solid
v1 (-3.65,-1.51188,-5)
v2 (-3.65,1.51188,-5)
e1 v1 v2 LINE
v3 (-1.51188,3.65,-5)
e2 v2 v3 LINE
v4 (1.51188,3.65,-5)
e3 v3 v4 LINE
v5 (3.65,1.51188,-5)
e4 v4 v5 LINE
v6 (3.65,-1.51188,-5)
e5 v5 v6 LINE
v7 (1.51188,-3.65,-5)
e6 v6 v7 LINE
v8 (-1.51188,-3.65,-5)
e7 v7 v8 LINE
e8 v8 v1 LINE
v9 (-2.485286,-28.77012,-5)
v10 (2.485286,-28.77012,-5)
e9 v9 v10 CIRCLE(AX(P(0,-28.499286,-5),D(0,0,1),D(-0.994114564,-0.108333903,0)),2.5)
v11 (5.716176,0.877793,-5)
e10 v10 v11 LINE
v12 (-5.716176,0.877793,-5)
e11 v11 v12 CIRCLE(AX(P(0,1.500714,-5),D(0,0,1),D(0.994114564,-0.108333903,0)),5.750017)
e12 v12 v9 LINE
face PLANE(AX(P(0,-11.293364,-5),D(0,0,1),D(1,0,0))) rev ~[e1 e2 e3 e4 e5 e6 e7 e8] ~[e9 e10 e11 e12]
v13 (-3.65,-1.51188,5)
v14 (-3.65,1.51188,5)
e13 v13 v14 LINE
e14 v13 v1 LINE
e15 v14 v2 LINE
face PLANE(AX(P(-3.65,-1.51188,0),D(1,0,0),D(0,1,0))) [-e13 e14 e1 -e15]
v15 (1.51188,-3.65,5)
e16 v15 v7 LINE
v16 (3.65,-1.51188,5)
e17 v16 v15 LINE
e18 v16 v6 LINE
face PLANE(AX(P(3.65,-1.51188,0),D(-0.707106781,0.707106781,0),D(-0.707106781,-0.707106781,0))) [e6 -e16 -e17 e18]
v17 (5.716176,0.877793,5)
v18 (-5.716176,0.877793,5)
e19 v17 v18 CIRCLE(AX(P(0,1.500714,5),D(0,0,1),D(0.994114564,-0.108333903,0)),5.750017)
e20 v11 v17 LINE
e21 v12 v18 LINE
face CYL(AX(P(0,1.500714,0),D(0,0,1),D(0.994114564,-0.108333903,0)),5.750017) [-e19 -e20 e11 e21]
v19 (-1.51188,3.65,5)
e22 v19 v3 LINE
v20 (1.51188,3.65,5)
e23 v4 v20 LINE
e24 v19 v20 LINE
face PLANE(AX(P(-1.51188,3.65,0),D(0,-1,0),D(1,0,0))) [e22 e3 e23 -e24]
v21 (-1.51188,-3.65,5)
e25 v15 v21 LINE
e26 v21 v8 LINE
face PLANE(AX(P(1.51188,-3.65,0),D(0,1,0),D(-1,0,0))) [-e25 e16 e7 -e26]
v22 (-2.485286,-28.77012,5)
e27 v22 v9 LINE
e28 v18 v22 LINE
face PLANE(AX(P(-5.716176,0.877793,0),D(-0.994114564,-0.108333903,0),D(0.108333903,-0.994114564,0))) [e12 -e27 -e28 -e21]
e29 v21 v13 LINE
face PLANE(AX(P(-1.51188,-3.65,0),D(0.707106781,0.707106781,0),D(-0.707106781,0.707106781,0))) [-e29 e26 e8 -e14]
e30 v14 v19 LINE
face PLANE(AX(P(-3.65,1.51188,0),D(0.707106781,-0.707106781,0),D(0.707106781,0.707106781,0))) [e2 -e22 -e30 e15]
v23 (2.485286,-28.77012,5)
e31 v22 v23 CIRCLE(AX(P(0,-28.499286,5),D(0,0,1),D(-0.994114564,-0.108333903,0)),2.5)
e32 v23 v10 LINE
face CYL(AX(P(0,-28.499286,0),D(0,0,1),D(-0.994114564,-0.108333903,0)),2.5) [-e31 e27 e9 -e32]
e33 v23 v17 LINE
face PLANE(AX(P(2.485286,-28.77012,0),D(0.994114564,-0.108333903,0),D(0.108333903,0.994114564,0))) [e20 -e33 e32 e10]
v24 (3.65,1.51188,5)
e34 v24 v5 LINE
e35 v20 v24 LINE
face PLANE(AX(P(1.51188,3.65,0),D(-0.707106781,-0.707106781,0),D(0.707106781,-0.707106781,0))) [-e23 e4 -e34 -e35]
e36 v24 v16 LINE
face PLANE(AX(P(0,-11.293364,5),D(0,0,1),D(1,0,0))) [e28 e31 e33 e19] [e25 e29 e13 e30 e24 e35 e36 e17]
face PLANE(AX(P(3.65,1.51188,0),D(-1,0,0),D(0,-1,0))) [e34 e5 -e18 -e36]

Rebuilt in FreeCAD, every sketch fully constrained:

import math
import FreeCAD as App
import Part
import Sketcher

V = App.Vector

doc = App.newDocument("Part")
body = doc.addObject("PartDesign::Body", "Body")

sketch1 = doc.addObject("Sketcher::SketchObject", "Sketch")
body.addObject(sketch1)
sketch1.AttachmentSupport = (doc.XY_Plane, [""])
sketch1.MapMode = "FlatFace"
sketch1.addGeometry([
    Part.LineSegment(V(2.5, -28.8, 0), V(5.7, 0.9, 0)),
    Part.ArcOfCircle(Part.Circle(V(0, 1.5, 0), V(0, 0, 1), 5.8), math.radians(-6), math.radians(186)),
    Part.LineSegment(V(-5.7, 0.9, 0), V(-2.5, -28.8, 0)),
    Part.ArcOfCircle(Part.Circle(V(0, -28.5, 0), V(0, 0, 1), 2.5), math.radians(-174), math.radians(-6)),
    Part.LineSegment(V(-1.5, 3.6, 0), V(1.5, 3.6, 0)),
    Part.LineSegment(V(1.5, 3.6, 0), V(3.6, 1.5, 0)),
    Part.LineSegment(V(3.6, 1.5, 0), V(3.6, -1.5, 0)),
    Part.LineSegment(V(3.6, -1.5, 0), V(1.5, -3.6, 0)),
    Part.LineSegment(V(1.5, -3.6, 0), V(-1.5, -3.6, 0)),
    Part.LineSegment(V(-1.5, -3.6, 0), V(-3.6, -1.5, 0)),
    Part.LineSegment(V(-3.6, -1.5, 0), V(-3.6, 1.5, 0)),
    Part.LineSegment(V(-3.6, 1.5, 0), V(-1.5, 3.6, 0)),
], False)
sketch1.addConstraint([
    Sketcher.Constraint("Tangent", 0, 2, 1, 1),
    Sketcher.Constraint("Tangent", 1, 2, 2, 1),
    Sketcher.Constraint("Tangent", 2, 2, 3, 1),
    Sketcher.Constraint("Tangent", 3, 2, 0, 1),
    Sketcher.Constraint("Coincident", 4, 2, 5, 1),
    Sketcher.Constraint("Coincident", 5, 2, 6, 1),
    Sketcher.Constraint("Coincident", 6, 2, 7, 1),
    Sketcher.Constraint("Coincident", 7, 2, 8, 1),
    Sketcher.Constraint("Coincident", 8, 2, 9, 1),
    Sketcher.Constraint("Coincident", 9, 2, 10, 1),
    Sketcher.Constraint("Coincident", 10, 2, 11, 1),
    Sketcher.Constraint("Coincident", 11, 2, 4, 1),
    Sketcher.Constraint("Horizontal", 4),
    Sketcher.Constraint("Vertical", 6),
    Sketcher.Constraint("Horizontal", 8),
    Sketcher.Constraint("Vertical", 10),
    Sketcher.Constraint("Symmetric", 4, 2, 8, 2, -1, 1),
    Sketcher.Constraint("Symmetric", 5, 2, 9, 2, -1, 1),
    Sketcher.Constraint("Symmetric", 0, 2, 1, 2, -2),
    Sketcher.Constraint("Perpendicular", 5, 7),
    Sketcher.Constraint("Perpendicular", 9, 11),
    Sketcher.Constraint("Horizontal", 6, 2, 9, 2),
    Sketcher.Constraint("Horizontal", 5, 2, 10, 2),
    Sketcher.Constraint("Vertical", 4, 2, 7, 2),
    Sketcher.Constraint("Equal", 8, 6),
    Sketcher.Constraint("Radius", 3, 2.5),
    Sketcher.Constraint("DistanceY", 3, 3, 1, 3, 30.0),
    Sketcher.Constraint("DistanceY", 7, 2, 4, 2, 7.3),
    Sketcher.Constraint("Radius", 1, 5.750017),
    Sketcher.Constraint("DistanceX", 4, 1, 4, 2, 3.023759),
    Sketcher.Constraint("DistanceY", 2, 2, -1, 1, 28.77012),
])
pad1 = doc.addObject("PartDesign::Pad", "Pad")
body.addObject(pad1)
pad1.Profile = sketch1
pad1.Length = 10
pad1.Midplane = True

doc.recompute()
